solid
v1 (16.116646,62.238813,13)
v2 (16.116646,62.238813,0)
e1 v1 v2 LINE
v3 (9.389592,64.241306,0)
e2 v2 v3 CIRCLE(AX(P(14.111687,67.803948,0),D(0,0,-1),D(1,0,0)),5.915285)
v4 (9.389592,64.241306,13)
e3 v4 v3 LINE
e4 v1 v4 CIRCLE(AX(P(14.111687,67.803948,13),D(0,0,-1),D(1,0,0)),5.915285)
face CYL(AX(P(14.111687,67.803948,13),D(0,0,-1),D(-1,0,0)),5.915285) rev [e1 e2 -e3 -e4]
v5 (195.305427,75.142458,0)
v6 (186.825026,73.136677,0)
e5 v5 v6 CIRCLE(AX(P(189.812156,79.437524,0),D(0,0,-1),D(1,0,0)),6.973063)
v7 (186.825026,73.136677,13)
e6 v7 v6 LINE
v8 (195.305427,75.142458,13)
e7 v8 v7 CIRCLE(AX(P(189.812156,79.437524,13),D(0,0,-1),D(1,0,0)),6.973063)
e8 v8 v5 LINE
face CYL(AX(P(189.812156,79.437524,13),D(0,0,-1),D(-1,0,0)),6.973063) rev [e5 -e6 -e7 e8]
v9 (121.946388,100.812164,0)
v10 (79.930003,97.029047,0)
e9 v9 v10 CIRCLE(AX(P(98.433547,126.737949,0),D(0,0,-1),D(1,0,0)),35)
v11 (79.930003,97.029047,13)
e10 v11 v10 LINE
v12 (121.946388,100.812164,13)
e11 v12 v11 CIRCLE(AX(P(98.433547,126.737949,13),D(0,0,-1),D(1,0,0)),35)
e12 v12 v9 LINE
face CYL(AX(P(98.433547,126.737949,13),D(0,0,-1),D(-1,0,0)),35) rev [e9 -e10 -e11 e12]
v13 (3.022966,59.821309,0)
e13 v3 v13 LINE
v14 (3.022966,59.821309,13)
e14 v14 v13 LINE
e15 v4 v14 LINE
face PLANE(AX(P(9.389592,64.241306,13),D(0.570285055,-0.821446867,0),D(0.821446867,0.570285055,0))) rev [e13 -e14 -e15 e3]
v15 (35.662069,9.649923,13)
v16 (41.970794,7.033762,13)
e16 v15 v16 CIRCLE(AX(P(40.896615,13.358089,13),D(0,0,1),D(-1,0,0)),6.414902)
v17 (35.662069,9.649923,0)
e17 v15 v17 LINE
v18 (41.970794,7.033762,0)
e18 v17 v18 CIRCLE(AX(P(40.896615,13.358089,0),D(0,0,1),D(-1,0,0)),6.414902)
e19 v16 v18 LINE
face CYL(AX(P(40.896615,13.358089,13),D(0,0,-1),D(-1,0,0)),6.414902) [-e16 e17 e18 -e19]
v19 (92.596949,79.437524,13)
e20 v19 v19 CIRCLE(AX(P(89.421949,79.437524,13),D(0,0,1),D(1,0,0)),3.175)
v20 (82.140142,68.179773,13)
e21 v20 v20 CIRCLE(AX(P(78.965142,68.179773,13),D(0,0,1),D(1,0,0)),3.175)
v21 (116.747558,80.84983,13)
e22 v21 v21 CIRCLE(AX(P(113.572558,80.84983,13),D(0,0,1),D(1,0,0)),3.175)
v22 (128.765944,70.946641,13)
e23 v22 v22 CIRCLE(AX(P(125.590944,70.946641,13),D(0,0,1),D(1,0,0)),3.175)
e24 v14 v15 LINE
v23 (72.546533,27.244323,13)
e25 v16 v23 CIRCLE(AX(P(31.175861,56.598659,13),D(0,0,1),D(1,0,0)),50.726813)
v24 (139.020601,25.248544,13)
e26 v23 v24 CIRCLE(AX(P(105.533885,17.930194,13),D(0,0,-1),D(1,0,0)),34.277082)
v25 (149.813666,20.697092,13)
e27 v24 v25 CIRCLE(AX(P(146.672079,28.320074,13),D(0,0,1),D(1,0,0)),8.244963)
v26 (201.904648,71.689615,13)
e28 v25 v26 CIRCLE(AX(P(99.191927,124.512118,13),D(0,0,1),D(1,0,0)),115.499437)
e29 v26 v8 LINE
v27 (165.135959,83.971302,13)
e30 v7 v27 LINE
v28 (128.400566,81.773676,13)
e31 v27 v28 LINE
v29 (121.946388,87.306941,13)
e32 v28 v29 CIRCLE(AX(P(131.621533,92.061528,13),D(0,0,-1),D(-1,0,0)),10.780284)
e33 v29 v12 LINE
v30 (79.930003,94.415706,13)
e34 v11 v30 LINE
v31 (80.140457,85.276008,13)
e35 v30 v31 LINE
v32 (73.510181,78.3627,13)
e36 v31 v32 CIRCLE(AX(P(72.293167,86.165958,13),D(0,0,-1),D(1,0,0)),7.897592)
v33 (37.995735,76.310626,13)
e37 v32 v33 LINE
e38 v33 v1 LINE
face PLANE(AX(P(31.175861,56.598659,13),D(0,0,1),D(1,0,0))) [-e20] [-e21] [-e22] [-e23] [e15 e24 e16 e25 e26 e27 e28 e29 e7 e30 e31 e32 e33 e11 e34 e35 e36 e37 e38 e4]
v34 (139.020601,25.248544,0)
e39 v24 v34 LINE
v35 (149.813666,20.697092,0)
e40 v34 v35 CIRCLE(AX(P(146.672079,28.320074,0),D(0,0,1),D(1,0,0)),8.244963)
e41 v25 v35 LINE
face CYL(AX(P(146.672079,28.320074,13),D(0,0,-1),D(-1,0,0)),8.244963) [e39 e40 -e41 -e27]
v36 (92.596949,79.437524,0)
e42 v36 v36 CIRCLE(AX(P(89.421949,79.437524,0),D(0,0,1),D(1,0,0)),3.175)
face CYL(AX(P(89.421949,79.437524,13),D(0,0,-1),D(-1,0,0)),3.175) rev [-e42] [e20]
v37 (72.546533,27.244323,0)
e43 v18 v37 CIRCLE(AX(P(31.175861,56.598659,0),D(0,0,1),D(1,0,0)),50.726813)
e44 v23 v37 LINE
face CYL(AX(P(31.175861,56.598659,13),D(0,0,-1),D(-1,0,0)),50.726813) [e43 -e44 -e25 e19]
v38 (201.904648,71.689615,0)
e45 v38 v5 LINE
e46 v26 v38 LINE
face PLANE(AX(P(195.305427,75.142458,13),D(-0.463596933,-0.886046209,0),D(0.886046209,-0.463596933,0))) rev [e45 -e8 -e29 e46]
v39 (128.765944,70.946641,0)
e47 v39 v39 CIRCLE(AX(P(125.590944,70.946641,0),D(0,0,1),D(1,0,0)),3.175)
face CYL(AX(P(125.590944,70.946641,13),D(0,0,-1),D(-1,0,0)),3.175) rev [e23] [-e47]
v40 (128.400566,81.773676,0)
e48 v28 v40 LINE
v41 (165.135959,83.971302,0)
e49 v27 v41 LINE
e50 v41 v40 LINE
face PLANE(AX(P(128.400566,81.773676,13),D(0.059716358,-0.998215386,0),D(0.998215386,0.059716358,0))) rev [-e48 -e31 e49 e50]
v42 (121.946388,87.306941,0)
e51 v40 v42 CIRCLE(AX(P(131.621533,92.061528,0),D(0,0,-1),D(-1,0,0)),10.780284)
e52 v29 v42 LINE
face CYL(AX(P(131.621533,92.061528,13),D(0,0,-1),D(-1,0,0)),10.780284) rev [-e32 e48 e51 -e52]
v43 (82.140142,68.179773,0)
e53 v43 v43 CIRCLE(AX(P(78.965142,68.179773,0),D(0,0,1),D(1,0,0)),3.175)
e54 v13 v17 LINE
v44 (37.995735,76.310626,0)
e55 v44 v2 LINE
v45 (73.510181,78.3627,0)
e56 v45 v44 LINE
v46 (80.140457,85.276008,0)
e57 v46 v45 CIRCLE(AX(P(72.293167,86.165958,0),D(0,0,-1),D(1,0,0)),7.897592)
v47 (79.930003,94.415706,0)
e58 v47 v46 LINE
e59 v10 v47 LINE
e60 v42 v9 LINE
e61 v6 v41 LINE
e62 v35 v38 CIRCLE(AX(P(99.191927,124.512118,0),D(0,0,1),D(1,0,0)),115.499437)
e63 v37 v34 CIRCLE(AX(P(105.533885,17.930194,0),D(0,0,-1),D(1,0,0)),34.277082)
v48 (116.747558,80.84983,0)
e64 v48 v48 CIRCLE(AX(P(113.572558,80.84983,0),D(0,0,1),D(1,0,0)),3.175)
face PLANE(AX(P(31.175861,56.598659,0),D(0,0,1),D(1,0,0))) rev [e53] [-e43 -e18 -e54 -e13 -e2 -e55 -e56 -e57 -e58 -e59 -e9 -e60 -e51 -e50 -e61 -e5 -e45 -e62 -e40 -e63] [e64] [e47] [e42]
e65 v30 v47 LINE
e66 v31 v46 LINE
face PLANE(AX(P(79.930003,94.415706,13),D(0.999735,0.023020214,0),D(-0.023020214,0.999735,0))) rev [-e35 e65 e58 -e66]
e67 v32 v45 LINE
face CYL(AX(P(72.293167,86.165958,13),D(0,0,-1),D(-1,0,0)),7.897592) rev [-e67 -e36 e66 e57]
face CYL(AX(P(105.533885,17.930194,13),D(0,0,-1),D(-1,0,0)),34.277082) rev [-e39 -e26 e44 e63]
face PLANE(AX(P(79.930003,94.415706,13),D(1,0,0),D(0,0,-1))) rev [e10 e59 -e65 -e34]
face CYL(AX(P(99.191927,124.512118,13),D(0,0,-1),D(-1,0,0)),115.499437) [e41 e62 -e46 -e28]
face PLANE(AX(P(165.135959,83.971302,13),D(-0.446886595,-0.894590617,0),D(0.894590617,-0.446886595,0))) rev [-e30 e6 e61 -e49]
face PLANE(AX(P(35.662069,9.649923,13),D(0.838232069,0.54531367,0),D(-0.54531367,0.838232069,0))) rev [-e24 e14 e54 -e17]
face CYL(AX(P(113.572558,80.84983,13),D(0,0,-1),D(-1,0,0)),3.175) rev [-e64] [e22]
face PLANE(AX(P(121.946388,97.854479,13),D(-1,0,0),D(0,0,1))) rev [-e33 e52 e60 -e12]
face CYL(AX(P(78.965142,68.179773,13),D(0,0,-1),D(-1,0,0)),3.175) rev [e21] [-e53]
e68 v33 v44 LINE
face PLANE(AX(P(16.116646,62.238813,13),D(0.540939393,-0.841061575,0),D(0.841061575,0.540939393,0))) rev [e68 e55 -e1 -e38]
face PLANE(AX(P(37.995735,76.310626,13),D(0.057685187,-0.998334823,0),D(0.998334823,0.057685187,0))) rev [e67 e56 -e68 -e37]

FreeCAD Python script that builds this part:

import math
import FreeCAD as App
import Part
import Sketcher

doc = App.newDocument("Part")
body = doc.addObject("PartDesign::Body", "Body")

sketch1 = body.newObject("Sketcher::SketchObject", "Sketch")
sketch1.AttachmentSupport = (doc.getObject("XY_Plane"), [""])
sketch1.MapMode = "FlatFace"
sketch1.addGeometry([
    Part.LineSegment(App.Vector(3.022966, 59.821309, 0), App.Vector(35.38523, 10.075467, 0)),
    Part.LineSegment(App.Vector(35.38523, 10.075467, 0), App.Vector(35.662069, 9.649923, 0)),
    Part.ArcOfCircle(Part.Circle(App.Vector(40.896615, 13.358089, 0), App.Vector(0, 0, 1), 6.414902), math.radians(-144.686141), math.radians(-80.360377)),
    Part.ArcOfCircle(Part.Circle(App.Vector(31.175861, 56.598659, 0), App.Vector(0, 0, 1), 50.726813), math.radians(-77.713201), math.radians(-35.3574)),
    Part.ArcOfCircle(Part.Circle(App.Vector(105.533885, 17.930194, 0), App.Vector(0, 0, 1), 34.277082), math.radians(12.32787), math.radians(164.232732)),
    Part.ArcOfCircle(Part.Circle(App.Vector(146.672079, 28.320074, 0), App.Vector(0, 0, 1), 8.244963), math.radians(-158.128014), math.radians(-67.602434)),
    Part.ArcOfCircle(Part.Circle(App.Vector(99.191924, 124.512123, 0), App.Vector(0, 0, 1), 115.499443), math.radians(-64.005454), math.radians(-63.452884)),
    Part.ArcOfCircle(Part.Circle(App.Vector(99.191927, 124.512118, 0), App.Vector(0, 0, 1), 115.499437), math.radians(-63.452884), math.radians(-27.21559)),
    Part.LineSegment(App.Vector(201.904648, 71.689615, 0), App.Vector(195.305427, 75.142458, 0)),
    Part.ArcOfCircle(Part.Circle(App.Vector(189.812156, 79.437524, 0), App.Vector(0, 0, 1), 6.973063), math.radians(-115.364878), math.radians(-38.021056)),
    Part.LineSegment(App.Vector(186.825026, 73.136677, 0), App.Vector(165.135959, 83.971302, 0)),
    Part.LineSegment(App.Vector(165.135959, 83.971302, 0), App.Vector(128.400566, 81.773676, 0)),
    Part.ArcOfCircle(Part.Circle(App.Vector(131.621533, 92.061528, 0), App.Vector(0, 0, 1), 10.780284), math.radians(-153.829442), math.radians(-107.384528)),
    Part.LineSegment(App.Vector(121.946388, 87.306941, 0), App.Vector(121.946388, 100.812164, 0)),
    Part.ArcOfCircle(Part.Circle(App.Vector(98.433547, 126.737949, 0), App.Vector(0, 0, 1), 35), math.radians(-121.915818), math.radians(-47.794209)),
    Part.LineSegment(App.Vector(79.930003, 97.029047, 0), App.Vector(79.930003, 94.415706, 0)),
    Part.LineSegment(App.Vector(79.930003, 94.415706, 0), App.Vector(80.140457, 85.276008, 0)),
    Part.ArcOfCircle(Part.Circle(App.Vector(72.293167, 86.165958, 0), App.Vector(0, 0, 1), 7.897592), math.radians(-81.135433), math.radians(-6.470194)),
    Part.LineSegment(App.Vector(73.510181, 78.3627, 0), App.Vector(37.995735, 76.310626, 0)),
    Part.LineSegment(App.Vector(37.995735, 76.310626, 0), App.Vector(16.116646, 62.238813, 0)),
    Part.ArcOfCircle(Part.Circle(App.Vector(14.111687, 67.803948, 0), App.Vector(0, 0, 1), 5.915285), math.radians(-142.966817), math.radians(-70.187361)),
    Part.LineSegment(App.Vector(9.389592, 64.241306, 0), App.Vector(3.022966, 59.821309, 0)),
    Part.Circle(App.Vector(125.590944, 70.946641, 0), App.Vector(0, 0, 1), 3.175),
    Part.Circle(App.Vector(78.965142, 68.179773, 0), App.Vector(0, 0, 1), 3.175),
    Part.Circle(App.Vector(113.572558, 80.84983, 0), App.Vector(0, 0, 1), 3.175),
    Part.Circle(App.Vector(89.421949, 79.437524, 0), App.Vector(0, 0, 1), 3.175),
], False)
sketch1.addConstraint([
    Sketcher.Constraint("Coincident", 0, 2, 1, 1),
    Sketcher.Constraint("Coincident", 1, 2, 2, 1),
    Sketcher.Constraint("Coincident", 2, 2, 3, 1),
    Sketcher.Constraint("Coincident", 3, 2, 4, 2),
    Sketcher.Constraint("Coincident", 4, 1, 5, 1),
    Sketcher.Constraint("Coincident", 5, 2, 6, 1),
    Sketcher.Constraint("Coincident", 6, 2, 7, 1),
    Sketcher.Constraint("Coincident", 7, 2, 8, 1),
    Sketcher.Constraint("Coincident", 8, 2, 9, 2),
    Sketcher.Constraint("Coincident", 9, 1, 10, 1),
    Sketcher.Constraint("Coincident", 10, 2, 11, 1),
    Sketcher.Constraint("Coincident", 11, 2, 12, 2),
    Sketcher.Constraint("Coincident", 12, 1, 13, 1),
    Sketcher.Constraint("Coincident", 13, 2, 14, 2),
    Sketcher.Constraint("Coincident", 14, 1, 15, 1),
    Sketcher.Constraint("Coincident", 15, 2, 16, 1),
    Sketcher.Constraint("Coincident", 16, 2, 17, 2),
    Sketcher.Constraint("Coincident", 17, 1, 18, 1),
    Sketcher.Constraint("Coincident", 18, 2, 19, 1),
    Sketcher.Constraint("Coincident", 19, 2, 20, 2),
    Sketcher.Constraint("Coincident", 20, 1, 21, 1),
    Sketcher.Constraint("Coincident", 21, 2, 0, 1),
    Sketcher.Constraint("Vertical", 13),
    Sketcher.Constraint("Vertical", 15),
    Sketcher.Constraint("Coincident", 7, 3, 6, 3),
    Sketcher.Constraint("Radius", 14, 35.0),
    Sketcher.Constraint("Diameter", 22, 6.35),
    Sketcher.Constraint("Diameter", 23, 6.35),
    Sketcher.Constraint("Diameter", 24, 6.35),
    Sketcher.Constraint("Diameter", 25, 6.35),
    Sketcher.Constraint("Radius", 2, 6.414902),
    Sketcher.Constraint("Radius", 3, 50.726813),
    Sketcher.Constraint("Radius", 4, 34.277082),
    Sketcher.Constraint("Radius", 5, 8.244963),
    Sketcher.Constraint("Radius", 6, 115.499443),
    Sketcher.Constraint("Radius", 9, 6.973063),
    Sketcher.Constraint("Radius", 12, 10.780284),
    Sketcher.Constraint("Radius", 17, 7.897592),
    Sketcher.Constraint("Radius", 20, 5.915285),
    Sketcher.Constraint("DistanceY", 15, 2, 15, 1, 2.613341),
    Sketcher.Constraint("DistanceX", -1, 1, 4, 1, 139.020601),
    Sketcher.Constraint("DistanceY", -1, 1, 17, 1, 78.3627),
    Sketcher.Constraint("DistanceY", 9, 3, 6, 3, 45.0746),
    Sketcher.Constraint("DistanceY", 3, 3, 17, 3, 29.5673),
    Sketcher.Constraint("DistanceX", 23, 3, 22, 3, 46.625801),
    Sketcher.Constraint("DistanceY", 24, 3, 12, 3, 11.211699),
    Sketcher.Constraint("DistanceY", 1, 2, 3, 2, 17.5944),
    Sketcher.Constraint("DistanceY", 4, 3, 5, 2, 2.766898),
    Sketcher.Constraint("DistanceY", 6, 2, 7, 2, 50.499498),
    Sketcher.Constraint("DistanceX", 9, 1, 8, 2, 8.4804),
    Sketcher.Constraint("DistanceY", 22, 3, 12, 1, 16.3603),
    Sketcher.Constraint("DistanceY", 16, 2, 15, 2, 9.139699),
    Sketcher.Constraint("Distance", 1, 0.507669),
    Sketcher.Constraint("Distance", 11, 36.801068),
    Sketcher.Constraint("Distance", 16, 9.142121),
    Sketcher.Constraint("Distance", 19, 26.013659),
    Sketcher.Constraint("DistanceY", 13, 1, 13, 2, 13.505223),
    Sketcher.Constraint("DistanceY", -1, 1, 2, 3, 13.358089),
    Sketcher.Constraint("DistanceX", -1, 1, 3, 3, 31.175861),
    Sketcher.Constraint("DistanceY", -1, 1, 3, 3, 56.598659),
    Sketcher.Constraint("DistanceX", -1, 1, 5, 3, 146.672079),
    Sketcher.Constraint("DistanceY", -1, 1, 12, 3, 92.061528),
    Sketcher.Constraint("DistanceY", -1, 1, 14, 3, 126.737949),
    Sketcher.Constraint("DistanceY", -1, 1, 20, 3, 67.803948),
    Sketcher.Constraint("DistanceY", -1, 1, 22, 3, 70.946641),
    Sketcher.Constraint("DistanceX", -1, 1, 24, 3, 113.572558),
    Sketcher.Constraint("DistanceX", -1, 1, 25, 3, 89.421949),
    Sketcher.Constraint("DistanceX", -1, 1, 0, 2, 35.38523),
    Sketcher.Constraint("DistanceX", -1, 1, 1, 2, 35.662069),
    Sketcher.Constraint("DistanceX", -1, 1, 7, 2, 201.904648),
    Sketcher.Constraint("DistanceY", -1, 1, 8, 2, 75.142458),
    Sketcher.Constraint("DistanceX", -1, 1, 10, 2, 165.135959),
    Sketcher.Constraint("DistanceX", -1, 1, 12, 1, 121.946388),
    Sketcher.Constraint("DistanceX", -1, 1, 17, 1, 73.510181),
    Sketcher.Constraint("DistanceY", -1, 1, 21, 2, 59.821309),
    Sketcher.Constraint("DistanceX", 2, 3, 4, 3, 64.63727),
    Sketcher.Constraint("DistanceY", 4, 3, 5, 3, 10.389879),
    Sketcher.Constraint("DistanceX", 6, 3, 4, 3, 6.341961),
    Sketcher.Constraint("DistanceX", 7, 3, 9, 3, 90.620229),
    Sketcher.Constraint("DistanceX", 20, 3, 2, 3, 26.784929),
    Sketcher.Constraint("DistanceX", 22, 3, 12, 3, 6.030589),
    Sketcher.Constraint("DistanceY", 4, 3, 23, 3, 50.249579),
    Sketcher.Constraint("DistanceY", 23, 3, 25, 3, 11.25775),
    Sketcher.Constraint("DistanceY", 9, 3, 10, 2, 4.533778),
    Sketcher.Constraint("DistanceX", 20, 3, 18, 2, 23.884048),
    Sketcher.Constraint("DistanceX", 20, 3, 19, 2, 2.004959),
    Sketcher.Constraint("DistanceX", 20, 1, 3, 3, 21.786269),
    Sketcher.Constraint("DistanceX", 21, 2, 19, 2, 13.09368),
])
pad1 = body.newObject("PartDesign::Pad", "Pad")
pad1.Profile = sketch1
pad1.Length = 13

doc.recompute()
